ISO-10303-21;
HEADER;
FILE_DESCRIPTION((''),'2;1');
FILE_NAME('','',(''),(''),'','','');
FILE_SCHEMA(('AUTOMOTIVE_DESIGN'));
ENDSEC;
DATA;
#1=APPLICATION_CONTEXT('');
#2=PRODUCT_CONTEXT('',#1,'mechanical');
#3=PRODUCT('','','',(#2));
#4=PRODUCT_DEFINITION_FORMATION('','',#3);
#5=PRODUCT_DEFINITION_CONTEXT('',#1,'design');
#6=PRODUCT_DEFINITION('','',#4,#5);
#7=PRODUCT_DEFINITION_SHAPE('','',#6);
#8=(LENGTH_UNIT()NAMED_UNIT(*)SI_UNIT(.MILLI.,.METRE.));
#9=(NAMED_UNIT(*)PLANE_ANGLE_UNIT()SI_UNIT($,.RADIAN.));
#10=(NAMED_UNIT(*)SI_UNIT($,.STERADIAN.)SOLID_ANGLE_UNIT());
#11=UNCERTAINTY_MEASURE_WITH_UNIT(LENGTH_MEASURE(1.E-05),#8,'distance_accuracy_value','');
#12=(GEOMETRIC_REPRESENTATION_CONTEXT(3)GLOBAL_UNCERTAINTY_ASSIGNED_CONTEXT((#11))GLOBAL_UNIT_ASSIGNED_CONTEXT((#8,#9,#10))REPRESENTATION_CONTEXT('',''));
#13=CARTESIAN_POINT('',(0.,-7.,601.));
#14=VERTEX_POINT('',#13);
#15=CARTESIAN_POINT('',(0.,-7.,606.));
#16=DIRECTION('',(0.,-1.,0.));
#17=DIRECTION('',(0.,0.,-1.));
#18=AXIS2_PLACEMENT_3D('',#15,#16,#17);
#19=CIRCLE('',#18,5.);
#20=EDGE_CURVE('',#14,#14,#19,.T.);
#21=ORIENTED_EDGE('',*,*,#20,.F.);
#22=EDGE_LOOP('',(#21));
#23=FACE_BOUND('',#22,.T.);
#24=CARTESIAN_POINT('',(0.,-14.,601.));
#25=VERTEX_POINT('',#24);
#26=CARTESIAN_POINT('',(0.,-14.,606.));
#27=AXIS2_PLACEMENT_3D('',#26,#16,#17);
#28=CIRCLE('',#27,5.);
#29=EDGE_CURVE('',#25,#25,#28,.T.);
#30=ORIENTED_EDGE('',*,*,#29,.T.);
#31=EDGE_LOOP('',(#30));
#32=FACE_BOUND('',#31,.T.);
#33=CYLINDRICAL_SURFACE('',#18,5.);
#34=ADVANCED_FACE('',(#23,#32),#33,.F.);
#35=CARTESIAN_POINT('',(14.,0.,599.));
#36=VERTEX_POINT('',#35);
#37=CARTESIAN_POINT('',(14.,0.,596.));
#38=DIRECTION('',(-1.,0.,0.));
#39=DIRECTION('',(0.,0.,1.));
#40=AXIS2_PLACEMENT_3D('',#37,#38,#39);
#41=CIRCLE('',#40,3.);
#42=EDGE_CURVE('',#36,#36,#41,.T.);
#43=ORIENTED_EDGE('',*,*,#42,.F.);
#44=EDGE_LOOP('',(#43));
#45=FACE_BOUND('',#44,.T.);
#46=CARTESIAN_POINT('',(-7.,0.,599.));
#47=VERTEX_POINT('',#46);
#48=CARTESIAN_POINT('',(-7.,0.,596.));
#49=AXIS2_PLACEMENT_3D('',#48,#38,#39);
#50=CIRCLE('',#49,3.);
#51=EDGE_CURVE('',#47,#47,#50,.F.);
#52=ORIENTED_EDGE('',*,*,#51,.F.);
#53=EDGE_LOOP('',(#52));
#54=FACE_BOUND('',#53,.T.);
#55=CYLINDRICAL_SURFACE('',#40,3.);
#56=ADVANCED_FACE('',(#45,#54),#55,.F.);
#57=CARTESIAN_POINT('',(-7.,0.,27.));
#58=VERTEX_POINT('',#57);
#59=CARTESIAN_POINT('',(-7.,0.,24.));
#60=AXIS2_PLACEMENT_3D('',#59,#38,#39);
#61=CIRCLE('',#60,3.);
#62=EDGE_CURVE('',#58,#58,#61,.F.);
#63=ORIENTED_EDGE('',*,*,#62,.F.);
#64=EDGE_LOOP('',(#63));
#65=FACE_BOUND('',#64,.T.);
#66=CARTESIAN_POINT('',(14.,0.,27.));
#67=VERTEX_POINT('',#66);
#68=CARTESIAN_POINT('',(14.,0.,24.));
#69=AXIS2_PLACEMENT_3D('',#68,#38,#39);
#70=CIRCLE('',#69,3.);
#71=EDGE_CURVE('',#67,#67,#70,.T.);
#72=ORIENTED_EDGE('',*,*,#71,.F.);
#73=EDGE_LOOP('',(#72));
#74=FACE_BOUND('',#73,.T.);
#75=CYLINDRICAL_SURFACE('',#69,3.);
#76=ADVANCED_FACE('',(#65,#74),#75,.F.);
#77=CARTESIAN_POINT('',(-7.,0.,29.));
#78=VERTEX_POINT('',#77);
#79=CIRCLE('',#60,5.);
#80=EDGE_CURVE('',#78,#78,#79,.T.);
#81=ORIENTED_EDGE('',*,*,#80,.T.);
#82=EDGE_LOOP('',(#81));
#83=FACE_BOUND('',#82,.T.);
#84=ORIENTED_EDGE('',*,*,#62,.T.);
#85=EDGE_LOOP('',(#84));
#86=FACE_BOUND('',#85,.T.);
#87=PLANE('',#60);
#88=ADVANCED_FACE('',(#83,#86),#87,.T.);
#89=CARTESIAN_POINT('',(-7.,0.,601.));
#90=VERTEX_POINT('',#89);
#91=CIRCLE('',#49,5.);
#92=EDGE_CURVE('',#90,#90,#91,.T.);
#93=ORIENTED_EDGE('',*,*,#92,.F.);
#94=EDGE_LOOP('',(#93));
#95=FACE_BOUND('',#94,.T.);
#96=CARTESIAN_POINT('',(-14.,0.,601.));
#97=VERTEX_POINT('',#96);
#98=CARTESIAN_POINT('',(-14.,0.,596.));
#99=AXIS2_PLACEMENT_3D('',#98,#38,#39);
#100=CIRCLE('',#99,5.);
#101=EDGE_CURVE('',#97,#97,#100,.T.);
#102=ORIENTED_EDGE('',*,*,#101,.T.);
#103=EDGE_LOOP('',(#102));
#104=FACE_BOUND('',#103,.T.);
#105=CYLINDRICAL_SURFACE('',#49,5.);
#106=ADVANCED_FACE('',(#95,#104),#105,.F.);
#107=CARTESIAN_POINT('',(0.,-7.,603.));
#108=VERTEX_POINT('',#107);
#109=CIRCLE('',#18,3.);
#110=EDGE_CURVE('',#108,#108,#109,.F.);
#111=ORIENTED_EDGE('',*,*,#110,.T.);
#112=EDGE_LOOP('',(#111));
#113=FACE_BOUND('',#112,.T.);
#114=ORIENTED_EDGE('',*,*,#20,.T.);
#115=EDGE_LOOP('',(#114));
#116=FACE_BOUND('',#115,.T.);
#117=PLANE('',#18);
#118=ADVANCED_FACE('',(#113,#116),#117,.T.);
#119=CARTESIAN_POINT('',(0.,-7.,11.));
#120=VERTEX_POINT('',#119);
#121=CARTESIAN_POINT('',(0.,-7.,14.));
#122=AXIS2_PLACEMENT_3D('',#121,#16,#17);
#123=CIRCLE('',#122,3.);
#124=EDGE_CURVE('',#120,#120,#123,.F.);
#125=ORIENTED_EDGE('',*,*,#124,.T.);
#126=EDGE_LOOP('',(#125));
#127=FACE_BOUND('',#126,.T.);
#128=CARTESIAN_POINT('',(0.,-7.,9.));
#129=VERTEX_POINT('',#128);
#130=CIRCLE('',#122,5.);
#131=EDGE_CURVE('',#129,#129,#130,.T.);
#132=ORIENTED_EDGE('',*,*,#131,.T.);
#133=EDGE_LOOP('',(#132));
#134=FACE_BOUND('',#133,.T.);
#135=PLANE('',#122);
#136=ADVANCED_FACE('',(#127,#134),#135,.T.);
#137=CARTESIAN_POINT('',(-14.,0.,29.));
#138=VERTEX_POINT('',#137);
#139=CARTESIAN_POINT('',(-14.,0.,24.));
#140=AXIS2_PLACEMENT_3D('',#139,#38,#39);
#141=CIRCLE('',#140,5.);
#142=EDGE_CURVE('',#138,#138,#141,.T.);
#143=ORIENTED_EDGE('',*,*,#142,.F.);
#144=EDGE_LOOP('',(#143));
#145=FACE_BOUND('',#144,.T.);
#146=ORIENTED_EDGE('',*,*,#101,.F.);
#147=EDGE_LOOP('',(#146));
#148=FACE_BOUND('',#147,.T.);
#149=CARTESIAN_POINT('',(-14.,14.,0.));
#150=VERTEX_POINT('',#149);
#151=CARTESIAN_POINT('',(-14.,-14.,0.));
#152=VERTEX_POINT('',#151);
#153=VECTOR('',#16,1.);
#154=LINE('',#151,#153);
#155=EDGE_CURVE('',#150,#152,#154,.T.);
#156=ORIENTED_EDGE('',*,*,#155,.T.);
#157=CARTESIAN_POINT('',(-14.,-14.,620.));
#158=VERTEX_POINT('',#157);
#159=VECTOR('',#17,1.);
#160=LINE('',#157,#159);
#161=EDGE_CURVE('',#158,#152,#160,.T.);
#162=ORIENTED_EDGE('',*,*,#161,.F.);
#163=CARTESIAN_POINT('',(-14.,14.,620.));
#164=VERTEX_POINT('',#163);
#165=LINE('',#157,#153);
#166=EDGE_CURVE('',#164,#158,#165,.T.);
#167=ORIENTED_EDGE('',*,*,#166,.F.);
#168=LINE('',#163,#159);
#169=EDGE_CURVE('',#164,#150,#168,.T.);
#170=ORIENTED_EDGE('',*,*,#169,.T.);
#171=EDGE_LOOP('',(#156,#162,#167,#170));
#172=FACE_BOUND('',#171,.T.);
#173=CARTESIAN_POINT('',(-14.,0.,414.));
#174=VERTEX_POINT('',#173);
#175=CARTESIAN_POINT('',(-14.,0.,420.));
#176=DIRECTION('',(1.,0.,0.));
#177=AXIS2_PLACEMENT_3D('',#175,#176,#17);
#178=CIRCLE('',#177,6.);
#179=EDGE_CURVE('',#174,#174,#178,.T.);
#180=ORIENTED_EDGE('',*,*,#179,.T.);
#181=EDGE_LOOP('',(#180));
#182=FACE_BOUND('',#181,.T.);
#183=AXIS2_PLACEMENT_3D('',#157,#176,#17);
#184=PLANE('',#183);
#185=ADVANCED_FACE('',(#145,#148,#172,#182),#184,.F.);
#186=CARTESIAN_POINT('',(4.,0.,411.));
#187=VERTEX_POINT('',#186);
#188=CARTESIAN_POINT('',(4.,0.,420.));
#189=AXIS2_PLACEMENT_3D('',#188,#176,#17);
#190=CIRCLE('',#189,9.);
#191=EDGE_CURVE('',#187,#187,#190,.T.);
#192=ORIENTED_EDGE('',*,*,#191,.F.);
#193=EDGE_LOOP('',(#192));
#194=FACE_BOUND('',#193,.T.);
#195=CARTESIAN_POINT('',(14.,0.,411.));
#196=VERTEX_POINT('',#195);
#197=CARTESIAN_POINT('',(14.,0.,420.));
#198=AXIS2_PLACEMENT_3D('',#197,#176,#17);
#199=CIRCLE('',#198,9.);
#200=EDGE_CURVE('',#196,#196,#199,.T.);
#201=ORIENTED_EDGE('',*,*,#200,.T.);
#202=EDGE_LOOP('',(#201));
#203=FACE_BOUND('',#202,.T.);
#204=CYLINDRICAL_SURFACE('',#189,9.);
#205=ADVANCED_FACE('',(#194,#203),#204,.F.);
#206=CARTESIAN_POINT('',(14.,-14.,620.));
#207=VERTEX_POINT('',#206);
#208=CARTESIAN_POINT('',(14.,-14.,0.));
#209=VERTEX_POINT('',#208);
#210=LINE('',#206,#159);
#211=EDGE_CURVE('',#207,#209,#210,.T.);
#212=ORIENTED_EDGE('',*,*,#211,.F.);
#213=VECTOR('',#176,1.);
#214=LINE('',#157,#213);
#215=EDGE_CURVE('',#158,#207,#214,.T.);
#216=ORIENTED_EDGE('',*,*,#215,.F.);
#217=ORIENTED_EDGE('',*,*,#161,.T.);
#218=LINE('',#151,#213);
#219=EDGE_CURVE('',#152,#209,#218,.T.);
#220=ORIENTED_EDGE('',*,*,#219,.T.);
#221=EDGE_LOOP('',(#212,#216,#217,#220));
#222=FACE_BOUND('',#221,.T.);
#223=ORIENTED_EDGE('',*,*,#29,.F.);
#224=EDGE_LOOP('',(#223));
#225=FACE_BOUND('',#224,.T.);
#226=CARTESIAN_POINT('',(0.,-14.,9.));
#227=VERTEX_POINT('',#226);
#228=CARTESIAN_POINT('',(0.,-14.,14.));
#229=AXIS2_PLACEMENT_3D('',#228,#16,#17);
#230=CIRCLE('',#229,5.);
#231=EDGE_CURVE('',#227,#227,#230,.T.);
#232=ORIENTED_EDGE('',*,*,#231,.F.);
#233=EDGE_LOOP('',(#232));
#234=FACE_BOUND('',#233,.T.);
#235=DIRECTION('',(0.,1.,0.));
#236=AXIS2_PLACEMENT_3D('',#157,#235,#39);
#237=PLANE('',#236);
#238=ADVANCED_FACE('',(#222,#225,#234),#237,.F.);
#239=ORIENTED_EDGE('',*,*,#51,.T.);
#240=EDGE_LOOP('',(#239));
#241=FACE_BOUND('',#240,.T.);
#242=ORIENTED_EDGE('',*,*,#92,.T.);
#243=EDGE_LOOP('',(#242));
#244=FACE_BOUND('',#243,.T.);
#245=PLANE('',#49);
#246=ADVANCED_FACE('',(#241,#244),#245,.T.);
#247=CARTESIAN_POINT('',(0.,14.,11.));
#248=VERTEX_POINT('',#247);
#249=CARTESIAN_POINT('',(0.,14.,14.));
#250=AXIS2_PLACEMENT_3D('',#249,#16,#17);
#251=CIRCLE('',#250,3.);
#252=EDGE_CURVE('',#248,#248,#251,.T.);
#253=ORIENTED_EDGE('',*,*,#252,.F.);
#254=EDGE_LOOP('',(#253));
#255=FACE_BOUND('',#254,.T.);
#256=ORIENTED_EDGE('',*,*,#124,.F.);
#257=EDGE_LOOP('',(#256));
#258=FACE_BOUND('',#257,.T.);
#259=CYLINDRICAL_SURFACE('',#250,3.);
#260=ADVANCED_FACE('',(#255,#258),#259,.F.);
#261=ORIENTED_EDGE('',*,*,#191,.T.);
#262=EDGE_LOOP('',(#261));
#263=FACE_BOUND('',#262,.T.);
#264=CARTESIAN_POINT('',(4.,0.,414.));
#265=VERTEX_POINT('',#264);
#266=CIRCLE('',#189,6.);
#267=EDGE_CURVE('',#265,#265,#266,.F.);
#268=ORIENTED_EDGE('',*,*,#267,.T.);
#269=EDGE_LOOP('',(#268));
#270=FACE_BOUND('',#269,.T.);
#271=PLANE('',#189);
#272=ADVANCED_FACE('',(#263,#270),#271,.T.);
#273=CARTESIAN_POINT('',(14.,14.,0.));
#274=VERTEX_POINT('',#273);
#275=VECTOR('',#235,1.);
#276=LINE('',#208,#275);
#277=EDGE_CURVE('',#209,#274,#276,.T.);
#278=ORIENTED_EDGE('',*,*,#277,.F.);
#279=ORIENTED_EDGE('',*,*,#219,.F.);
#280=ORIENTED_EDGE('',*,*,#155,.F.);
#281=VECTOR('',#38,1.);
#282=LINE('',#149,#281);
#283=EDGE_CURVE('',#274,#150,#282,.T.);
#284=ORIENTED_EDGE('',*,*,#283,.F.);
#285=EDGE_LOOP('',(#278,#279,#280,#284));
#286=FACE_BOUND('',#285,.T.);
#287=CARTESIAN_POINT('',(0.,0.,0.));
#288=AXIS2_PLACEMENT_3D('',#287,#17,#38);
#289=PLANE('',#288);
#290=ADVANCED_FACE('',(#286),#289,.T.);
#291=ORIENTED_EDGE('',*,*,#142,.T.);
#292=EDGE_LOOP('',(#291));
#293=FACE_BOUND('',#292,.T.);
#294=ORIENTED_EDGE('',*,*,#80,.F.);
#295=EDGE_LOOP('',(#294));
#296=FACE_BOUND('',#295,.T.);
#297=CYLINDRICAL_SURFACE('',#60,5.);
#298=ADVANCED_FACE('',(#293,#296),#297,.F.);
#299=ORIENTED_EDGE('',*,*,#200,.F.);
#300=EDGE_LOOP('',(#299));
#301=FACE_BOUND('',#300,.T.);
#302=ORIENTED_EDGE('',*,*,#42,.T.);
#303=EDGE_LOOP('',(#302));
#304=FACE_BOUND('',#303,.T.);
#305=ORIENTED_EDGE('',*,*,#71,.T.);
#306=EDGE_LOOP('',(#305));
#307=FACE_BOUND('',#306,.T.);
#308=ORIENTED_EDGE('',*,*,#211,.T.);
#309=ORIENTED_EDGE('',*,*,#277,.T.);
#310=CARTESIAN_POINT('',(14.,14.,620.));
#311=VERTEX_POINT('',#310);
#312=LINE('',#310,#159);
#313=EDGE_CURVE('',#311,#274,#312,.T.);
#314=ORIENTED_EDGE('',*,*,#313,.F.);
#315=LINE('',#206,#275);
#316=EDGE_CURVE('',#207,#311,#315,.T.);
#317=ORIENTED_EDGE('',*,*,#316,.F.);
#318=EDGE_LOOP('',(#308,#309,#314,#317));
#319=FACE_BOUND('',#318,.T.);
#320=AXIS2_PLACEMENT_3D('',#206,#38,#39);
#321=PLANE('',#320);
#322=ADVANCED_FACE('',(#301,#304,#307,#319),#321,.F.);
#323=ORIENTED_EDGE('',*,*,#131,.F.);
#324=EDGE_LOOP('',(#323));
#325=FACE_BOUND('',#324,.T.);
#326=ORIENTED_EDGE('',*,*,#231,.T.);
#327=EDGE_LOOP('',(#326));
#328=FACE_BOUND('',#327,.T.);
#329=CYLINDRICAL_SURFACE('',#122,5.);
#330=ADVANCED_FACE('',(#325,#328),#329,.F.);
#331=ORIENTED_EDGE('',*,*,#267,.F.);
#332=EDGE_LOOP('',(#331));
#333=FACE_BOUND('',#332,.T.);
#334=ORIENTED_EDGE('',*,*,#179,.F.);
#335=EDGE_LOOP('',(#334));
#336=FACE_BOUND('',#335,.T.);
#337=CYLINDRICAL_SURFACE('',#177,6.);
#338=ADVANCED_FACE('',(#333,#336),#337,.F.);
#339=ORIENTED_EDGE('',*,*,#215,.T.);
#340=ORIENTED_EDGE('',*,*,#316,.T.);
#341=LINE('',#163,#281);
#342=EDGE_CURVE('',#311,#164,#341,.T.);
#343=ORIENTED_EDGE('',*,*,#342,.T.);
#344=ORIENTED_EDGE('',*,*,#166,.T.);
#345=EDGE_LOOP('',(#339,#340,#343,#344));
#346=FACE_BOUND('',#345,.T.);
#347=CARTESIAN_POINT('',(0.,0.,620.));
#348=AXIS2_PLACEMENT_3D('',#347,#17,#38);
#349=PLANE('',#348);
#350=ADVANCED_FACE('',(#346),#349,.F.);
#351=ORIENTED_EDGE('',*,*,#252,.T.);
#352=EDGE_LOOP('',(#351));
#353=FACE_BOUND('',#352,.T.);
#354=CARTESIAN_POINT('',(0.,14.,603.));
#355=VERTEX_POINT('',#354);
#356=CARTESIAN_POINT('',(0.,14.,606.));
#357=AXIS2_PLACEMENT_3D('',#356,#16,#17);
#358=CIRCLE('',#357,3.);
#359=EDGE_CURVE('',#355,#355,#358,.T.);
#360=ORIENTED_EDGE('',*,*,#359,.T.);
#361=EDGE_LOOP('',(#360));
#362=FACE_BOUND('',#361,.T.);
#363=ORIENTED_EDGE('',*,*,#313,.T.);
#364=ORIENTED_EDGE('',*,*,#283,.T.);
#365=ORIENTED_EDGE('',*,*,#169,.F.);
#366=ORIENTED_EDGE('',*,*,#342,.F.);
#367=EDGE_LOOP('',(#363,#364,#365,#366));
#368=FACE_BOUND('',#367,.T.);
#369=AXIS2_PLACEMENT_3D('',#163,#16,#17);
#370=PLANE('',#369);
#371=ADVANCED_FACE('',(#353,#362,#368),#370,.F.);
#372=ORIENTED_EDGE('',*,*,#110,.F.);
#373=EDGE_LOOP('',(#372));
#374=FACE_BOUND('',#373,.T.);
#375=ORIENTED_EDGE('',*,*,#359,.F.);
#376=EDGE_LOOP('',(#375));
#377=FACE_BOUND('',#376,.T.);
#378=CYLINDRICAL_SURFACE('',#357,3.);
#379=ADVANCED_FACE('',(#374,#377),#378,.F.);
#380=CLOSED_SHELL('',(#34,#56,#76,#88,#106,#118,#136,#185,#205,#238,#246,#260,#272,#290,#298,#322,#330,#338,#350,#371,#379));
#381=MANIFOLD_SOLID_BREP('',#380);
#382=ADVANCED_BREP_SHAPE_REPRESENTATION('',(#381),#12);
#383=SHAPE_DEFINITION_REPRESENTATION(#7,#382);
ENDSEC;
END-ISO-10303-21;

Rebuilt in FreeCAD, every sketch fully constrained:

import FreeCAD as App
import Part
import Sketcher
Q = App.Units.Quantity


def add_polygon(sketch, points):
    """Adds a closed chain of lines whose ends are joined by coincident constraints."""
    first, n = sketch.GeometryCount, len(points)
    for a, b in zip(points, points[1:] + points[:1]):
        sketch.addGeometry(Part.LineSegment(App.Vector(*a, 0), App.Vector(*b, 0)), False)
    for i in range(n):
        sketch.addConstraint(Sketcher.Constraint("Coincident", first + i, 2, first + (i + 1) % n, 1))

doc = App.newDocument("Part")
body = doc.addObject("PartDesign::Body", "Body")

sketch1 = doc.addObject("Sketcher::SketchObject", "Sketch")
body.addObject(sketch1)
sketch1.AttachmentSupport = (doc.XY_Plane, [""])
sketch1.MapMode = "FlatFace"
add_polygon(sketch1, [(-14, 14), (-14, -14), (14, -14), (14, 14)])
sketch1.addConstraint([
    Sketcher.Constraint("Vertical", 0),
    Sketcher.Constraint("Horizontal", 1),
    Sketcher.Constraint("Vertical", 2),
    Sketcher.Constraint("Horizontal", 3),
    Sketcher.Constraint("Symmetric", 0, 2, 2, 2, -1, 1),
    Sketcher.Constraint("Equal", 3, 0),
    Sketcher.Constraint("DistanceX", 1, 1, 1, 2, Q("28 mm")),
])
pad1 = doc.addObject("PartDesign::Pad", "Pad")
body.addObject(pad1)
pad1.Profile = sketch1
pad1.Length = 620

sketch2 = doc.addObject("Sketcher::SketchObject", "Sketch001")
body.addObject(sketch2)
sketch2.AttachmentSupport = (doc.XZ_Plane, [""])
sketch2.MapMode = "FlatFace"
sketch2.AttachmentOffset = App.Placement(App.Vector(0, 0, 14), App.Rotation())
sketch2.addGeometry([
    Part.Circle(App.Vector(0, 14, 0), App.Vector(0, 0, 1), 3),
    Part.Circle(App.Vector(0, 606, 0), App.Vector(0, 0, 1), 3),
], False)
sketch2.addConstraint([
    Sketcher.Constraint("Equal", 0, 1),
    Sketcher.Constraint("PointOnObject", 0, 3, -2),
    Sketcher.Constraint("PointOnObject", 1, 3, -2),
    Sketcher.Constraint("Diameter", 0, Q("6 mm")),
    Sketcher.Constraint("DistanceY", -1, 1, 0, 3, Q("14 mm")),
    Sketcher.Constraint("DistanceY", -1, 1, 1, 3, Q("606 mm")),
])
pocket1 = doc.addObject("PartDesign::Pocket", "Pocket")
body.addObject(pocket1)
pocket1.Profile = sketch2
pocket1.Type = "ThroughAll"

sketch3 = doc.addObject("Sketcher::SketchObject", "Sketch002")
body.addObject(sketch3)
sketch3.AttachmentSupport = (doc.XZ_Plane, [""])
sketch3.MapMode = "FlatFace"
sketch3.AttachmentOffset = App.Placement(App.Vector(0, 0, 14), App.Rotation())
sketch3.addGeometry([
    Part.Circle(App.Vector(0, 14, 0), App.Vector(0, 0, 1), 5),
    Part.Circle(App.Vector(0, 606, 0), App.Vector(0, 0, 1), 5),
], False)
sketch3.addConstraint([
    Sketcher.Constraint("Equal", 0, 1),
    Sketcher.Constraint("PointOnObject", 0, 3, -2),
    Sketcher.Constraint("PointOnObject", 1, 3, -2),
    Sketcher.Constraint("Diameter", 0, Q("10 mm")),
    Sketcher.Constraint("DistanceY", -1, 1, 0, 3, Q("14 mm")),
    Sketcher.Constraint("DistanceY", -1, 1, 1, 3, Q("606 mm")),
])
pocket2 = doc.addObject("PartDesign::Pocket", "Pocket001")
body.addObject(pocket2)
pocket2.Profile = sketch3
pocket2.Length = 7

sketch4 = doc.addObject("Sketcher::SketchObject", "Sketch003")
body.addObject(sketch4)
sketch4.AttachmentSupport = (doc.YZ_Plane, [""])
sketch4.MapMode = "FlatFace"
sketch4.AttachmentOffset = App.Placement(App.Vector(0, 0, 14), App.Rotation())
sketch4.addGeometry(Part.Circle(App.Vector(0, 420, 0), App.Vector(0, 0, 1), 6), False)
sketch4.addConstraint([
    Sketcher.Constraint("PointOnObject", 0, 3, -2),
    Sketcher.Constraint("Diameter", 0, Q("12 mm")),
    Sketcher.Constraint("DistanceY", -1, 1, 0, 3, Q("420 mm")),
])
pocket3 = doc.addObject("PartDesign::Pocket", "Pocket002")
body.addObject(pocket3)
pocket3.Profile = sketch4
pocket3.Type = "ThroughAll"

sketch5 = doc.addObject("Sketcher::SketchObject", "Sketch004")
body.addObject(sketch5)
sketch5.AttachmentSupport = (doc.YZ_Plane, [""])
sketch5.MapMode = "FlatFace"
sketch5.AttachmentOffset = App.Placement(App.Vector(0, 0, 14), App.Rotation())
sketch5.addGeometry(Part.Circle(App.Vector(0, 420, 0), App.Vector(0, 0, 1), 9), False)
sketch5.addConstraint([
    Sketcher.Constraint("PointOnObject", 0, 3, -2),
    Sketcher.Constraint("Diameter", 0, Q("18 mm")),
    Sketcher.Constraint("DistanceY", -1, 1, 0, 3, Q("420 mm")),
])
pocket4 = doc.addObject("PartDesign::Pocket", "Pocket003")
body.addObject(pocket4)
pocket4.Profile = sketch5
pocket4.Length = 10

sketch6 = doc.addObject("Sketcher::SketchObject", "Sketch005")
body.addObject(sketch6)
sketch6.AttachmentSupport = (doc.YZ_Plane, [""])
sketch6.MapMode = "FlatFace"
sketch6.AttachmentOffset = App.Placement(App.Vector(0, 0, -14), App.Rotation())
sketch6.addGeometry([
    Part.Circle(App.Vector(0, 24, 0), App.Vector(0, 0, 1), 3),
    Part.Circle(App.Vector(0, 596, 0), App.Vector(0, 0, 1), 3),
], False)
sketch6.addConstraint([
    Sketcher.Constraint("Equal", 0, 1),
    Sketcher.Constraint("PointOnObject", 0, 3, -2),
    Sketcher.Constraint("PointOnObject", 1, 3, -2),
    Sketcher.Constraint("Diameter", 0, Q("6 mm")),
    Sketcher.Constraint("DistanceY", -1, 1, 0, 3, Q("24 mm")),
    Sketcher.Constraint("DistanceY", -1, 1, 1, 3, Q("596 mm")),
])
pocket5 = doc.addObject("PartDesign::Pocket", "Pocket004")
body.addObject(pocket5)
pocket5.Profile = sketch6
pocket5.Type = "ThroughAll"
pocket5.Reversed = True

sketch7 = doc.addObject("Sketcher::SketchObject", "Sketch006")
body.addObject(sketch7)
sketch7.AttachmentSupport = (doc.YZ_Plane, [""])
sketch7.MapMode = "FlatFace"
sketch7.AttachmentOffset = App.Placement(App.Vector(0, 0, -14), App.Rotation())
sketch7.addGeometry([
    Part.Circle(App.Vector(0, 24, 0), App.Vector(0, 0, 1), 5),
    Part.Circle(App.Vector(0, 596, 0), App.Vector(0, 0, 1), 5),
], False)
sketch7.addConstraint([
    Sketcher.Constraint("Equal", 0, 1),
    Sketcher.Constraint("PointOnObject", 0, 3, -2),
    Sketcher.Constraint("PointOnObject", 1, 3, -2),
    Sketcher.Constraint("Diameter", 0, Q("10 mm")),
    Sketcher.Constraint("DistanceY", -1, 1, 0, 3, Q("24 mm")),
    Sketcher.Constraint("DistanceY", -1, 1, 1, 3, Q("596 mm")),
])
pocket6 = doc.addObject("PartDesign::Pocket", "Pocket005")
body.addObject(pocket6)
pocket6.Profile = sketch7
pocket6.Length = 7
pocket6.Reversed = True

doc.recompute()
